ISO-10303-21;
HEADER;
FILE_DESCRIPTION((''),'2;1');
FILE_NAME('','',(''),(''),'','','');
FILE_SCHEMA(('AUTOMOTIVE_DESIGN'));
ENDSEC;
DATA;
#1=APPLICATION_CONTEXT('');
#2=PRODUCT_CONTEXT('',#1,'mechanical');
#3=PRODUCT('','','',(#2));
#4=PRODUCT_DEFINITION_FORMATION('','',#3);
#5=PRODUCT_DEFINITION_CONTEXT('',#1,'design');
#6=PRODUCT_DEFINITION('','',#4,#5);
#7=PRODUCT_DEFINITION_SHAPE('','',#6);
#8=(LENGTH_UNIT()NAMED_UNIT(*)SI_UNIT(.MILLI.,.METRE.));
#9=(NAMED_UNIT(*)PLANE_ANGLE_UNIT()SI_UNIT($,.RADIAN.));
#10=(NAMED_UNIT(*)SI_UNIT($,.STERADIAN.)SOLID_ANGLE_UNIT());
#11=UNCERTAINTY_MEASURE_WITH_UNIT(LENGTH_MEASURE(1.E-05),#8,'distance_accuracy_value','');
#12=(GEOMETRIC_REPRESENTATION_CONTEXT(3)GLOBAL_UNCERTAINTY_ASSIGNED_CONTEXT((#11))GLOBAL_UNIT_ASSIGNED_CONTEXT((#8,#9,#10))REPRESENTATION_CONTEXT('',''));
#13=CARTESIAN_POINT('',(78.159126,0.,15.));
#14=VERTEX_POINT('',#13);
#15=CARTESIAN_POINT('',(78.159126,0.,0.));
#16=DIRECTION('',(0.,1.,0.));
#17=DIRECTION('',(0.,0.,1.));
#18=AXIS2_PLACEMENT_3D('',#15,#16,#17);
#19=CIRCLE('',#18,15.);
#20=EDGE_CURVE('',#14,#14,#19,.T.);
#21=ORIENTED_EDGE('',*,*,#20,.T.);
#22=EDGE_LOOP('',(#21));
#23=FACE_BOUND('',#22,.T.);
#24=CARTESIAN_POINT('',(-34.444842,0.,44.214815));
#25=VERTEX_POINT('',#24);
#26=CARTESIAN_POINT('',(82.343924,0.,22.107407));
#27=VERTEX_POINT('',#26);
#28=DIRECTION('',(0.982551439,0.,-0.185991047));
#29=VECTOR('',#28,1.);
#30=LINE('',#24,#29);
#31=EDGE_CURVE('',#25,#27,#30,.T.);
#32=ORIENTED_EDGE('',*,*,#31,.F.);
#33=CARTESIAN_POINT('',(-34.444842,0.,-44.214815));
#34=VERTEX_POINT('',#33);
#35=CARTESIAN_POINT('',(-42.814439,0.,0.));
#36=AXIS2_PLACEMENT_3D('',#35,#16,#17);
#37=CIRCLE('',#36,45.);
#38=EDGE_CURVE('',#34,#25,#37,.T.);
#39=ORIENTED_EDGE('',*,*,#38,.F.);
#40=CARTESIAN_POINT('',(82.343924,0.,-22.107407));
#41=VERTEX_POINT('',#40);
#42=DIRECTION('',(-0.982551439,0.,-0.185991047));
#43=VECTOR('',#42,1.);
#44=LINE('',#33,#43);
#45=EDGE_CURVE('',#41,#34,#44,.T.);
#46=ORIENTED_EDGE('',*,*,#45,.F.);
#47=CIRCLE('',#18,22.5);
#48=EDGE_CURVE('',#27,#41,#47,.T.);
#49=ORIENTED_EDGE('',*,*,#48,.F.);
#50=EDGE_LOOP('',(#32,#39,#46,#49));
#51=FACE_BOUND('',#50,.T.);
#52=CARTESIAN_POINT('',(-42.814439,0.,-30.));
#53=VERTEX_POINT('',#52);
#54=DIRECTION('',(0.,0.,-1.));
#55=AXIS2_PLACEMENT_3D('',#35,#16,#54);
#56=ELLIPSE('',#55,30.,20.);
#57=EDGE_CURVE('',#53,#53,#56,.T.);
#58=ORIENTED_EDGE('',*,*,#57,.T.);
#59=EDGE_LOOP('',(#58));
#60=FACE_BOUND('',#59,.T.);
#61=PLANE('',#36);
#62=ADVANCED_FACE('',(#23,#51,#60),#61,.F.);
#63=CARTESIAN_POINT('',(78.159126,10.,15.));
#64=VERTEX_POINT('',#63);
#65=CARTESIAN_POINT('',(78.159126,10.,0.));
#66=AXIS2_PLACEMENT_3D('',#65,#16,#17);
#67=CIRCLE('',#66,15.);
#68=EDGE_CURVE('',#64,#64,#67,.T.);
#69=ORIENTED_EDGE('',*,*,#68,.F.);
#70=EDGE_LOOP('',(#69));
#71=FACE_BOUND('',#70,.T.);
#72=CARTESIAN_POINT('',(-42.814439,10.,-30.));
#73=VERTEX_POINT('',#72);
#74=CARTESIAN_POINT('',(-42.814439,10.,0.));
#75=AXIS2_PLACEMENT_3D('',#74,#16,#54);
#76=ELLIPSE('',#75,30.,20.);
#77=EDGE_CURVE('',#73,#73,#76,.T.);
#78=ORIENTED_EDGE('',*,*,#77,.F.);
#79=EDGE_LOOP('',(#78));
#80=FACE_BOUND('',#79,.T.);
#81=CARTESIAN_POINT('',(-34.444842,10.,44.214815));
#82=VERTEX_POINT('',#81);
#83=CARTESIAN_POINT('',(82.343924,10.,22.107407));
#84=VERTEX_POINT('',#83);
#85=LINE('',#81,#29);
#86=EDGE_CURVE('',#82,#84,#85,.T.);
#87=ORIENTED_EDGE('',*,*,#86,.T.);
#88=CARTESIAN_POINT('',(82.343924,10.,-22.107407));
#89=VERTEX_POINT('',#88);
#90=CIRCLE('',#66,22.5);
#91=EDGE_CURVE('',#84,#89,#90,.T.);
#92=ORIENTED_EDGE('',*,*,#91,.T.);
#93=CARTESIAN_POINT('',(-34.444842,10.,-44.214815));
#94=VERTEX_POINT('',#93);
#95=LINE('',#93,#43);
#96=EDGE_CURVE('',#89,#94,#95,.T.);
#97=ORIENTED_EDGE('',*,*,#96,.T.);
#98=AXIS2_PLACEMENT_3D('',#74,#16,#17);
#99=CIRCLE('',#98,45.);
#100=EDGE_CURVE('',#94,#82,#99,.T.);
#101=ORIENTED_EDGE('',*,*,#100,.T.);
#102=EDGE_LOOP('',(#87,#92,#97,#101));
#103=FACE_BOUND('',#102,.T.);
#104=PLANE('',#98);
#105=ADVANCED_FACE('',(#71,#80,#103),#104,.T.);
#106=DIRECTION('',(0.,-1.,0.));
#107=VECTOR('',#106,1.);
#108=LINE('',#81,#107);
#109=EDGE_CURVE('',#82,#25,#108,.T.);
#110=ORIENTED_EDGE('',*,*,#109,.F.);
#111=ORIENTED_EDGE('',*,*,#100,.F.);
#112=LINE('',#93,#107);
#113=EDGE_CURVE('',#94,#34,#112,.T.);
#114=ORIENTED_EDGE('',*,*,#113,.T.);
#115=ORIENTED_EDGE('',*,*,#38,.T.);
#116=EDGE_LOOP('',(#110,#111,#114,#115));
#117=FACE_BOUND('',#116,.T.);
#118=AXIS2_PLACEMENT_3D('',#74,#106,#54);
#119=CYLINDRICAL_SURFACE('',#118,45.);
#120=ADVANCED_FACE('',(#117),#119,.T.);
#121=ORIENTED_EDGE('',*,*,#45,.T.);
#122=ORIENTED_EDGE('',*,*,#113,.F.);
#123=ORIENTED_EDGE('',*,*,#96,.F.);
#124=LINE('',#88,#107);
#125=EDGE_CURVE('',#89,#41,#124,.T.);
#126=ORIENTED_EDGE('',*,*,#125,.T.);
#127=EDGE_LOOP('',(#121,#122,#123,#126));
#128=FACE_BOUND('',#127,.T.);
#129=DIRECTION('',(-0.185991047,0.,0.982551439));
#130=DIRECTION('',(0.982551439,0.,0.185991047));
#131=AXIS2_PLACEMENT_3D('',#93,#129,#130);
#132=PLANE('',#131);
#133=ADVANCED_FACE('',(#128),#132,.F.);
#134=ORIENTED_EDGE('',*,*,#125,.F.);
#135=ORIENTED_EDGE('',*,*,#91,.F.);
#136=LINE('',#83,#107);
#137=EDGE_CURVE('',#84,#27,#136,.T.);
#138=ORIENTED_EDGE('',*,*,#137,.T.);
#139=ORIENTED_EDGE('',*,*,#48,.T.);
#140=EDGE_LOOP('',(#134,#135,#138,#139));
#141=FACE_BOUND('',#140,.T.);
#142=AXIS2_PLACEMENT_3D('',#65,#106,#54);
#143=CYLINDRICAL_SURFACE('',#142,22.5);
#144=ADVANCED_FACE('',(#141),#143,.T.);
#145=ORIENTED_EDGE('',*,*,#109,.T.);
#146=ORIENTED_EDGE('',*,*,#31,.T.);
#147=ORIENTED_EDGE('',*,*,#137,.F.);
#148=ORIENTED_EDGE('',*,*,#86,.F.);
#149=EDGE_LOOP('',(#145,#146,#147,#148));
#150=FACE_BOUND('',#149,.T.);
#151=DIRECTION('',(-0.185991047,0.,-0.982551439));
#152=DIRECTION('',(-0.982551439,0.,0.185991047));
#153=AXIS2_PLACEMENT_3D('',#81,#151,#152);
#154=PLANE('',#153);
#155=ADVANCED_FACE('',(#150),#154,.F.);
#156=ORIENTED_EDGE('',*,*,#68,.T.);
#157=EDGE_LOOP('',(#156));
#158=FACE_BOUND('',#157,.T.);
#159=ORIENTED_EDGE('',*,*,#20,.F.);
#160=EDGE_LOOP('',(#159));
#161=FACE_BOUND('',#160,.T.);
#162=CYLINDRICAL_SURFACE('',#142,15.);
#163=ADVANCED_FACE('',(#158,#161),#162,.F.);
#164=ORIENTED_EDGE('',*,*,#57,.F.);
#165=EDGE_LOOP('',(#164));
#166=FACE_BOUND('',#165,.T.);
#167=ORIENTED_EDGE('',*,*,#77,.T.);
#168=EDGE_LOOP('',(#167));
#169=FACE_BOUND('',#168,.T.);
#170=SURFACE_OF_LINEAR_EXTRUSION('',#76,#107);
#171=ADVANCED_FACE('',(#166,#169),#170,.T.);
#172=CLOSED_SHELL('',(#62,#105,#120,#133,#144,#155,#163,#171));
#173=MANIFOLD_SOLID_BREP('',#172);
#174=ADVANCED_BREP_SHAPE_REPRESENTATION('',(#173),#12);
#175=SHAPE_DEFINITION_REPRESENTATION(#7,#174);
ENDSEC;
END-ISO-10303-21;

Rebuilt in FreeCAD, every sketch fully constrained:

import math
import FreeCAD as App
import Part
import Sketcher
from FreeCAD import Vector

doc = App.newDocument("Part")
body = doc.addObject("PartDesign::Body", "Body")

# Sketch on XZ plane
sketch1 = body.newObject("Sketcher::SketchObject", "Sketch")
sketch1.AttachmentSupport = (doc.getObject("XZ_Plane"), [""])
sketch1.MapMode = "FlatFace"
sketch1.addGeometry(Part.LineSegment(Vector(82.343924, -22.107407, 0), Vector(-34.444842, -44.214815, 0)), False)
sketch1.addGeometry(Part.ArcOfCircle(Part.Circle(Vector(-42.814439, 0, 0), Vector(0, 0, 1), 45), math.radians(79.281082), math.radians(280.718918)), False)
sketch1.addGeometry(Part.LineSegment(Vector(-34.444842, 44.214815, 0), Vector(82.343924, 22.107407, 0)), False)
sketch1.addGeometry(Part.ArcOfCircle(Part.Circle(Vector(78.159126, 0, 0), Vector(0, 0, 1), 22.5), math.radians(-79.281082), math.radians(79.281082)), False)
sketch1.addGeometry(Part.Circle(Vector(78.159126, 0, 0), Vector(0, 0, 1), 15), False)
sketch1.addGeometry(Part.Ellipse(Vector(-42.814439, -30, 0), Vector(-22.814439, 0, 0), Vector(-42.814439, 0, 0)), False)
sketch1.addConstraint(Sketcher.Constraint("Block", 5))
sketch1.addConstraint(Sketcher.Constraint("Tangent", 0, 2, 1, 2))
sketch1.addConstraint(Sketcher.Constraint("Tangent", 1, 1, 2, 1))
sketch1.addConstraint(Sketcher.Constraint("Tangent", 2, 2, 3, 2))
sketch1.addConstraint(Sketcher.Constraint("Tangent", 3, 1, 0, 1))
sketch1.addConstraint(Sketcher.Constraint("Coincident", 4, 3, 3, 3))
sketch1.addConstraint(Sketcher.Constraint("Symmetric", 0, 2, 1, 1, -1))
sketch1.addConstraint(Sketcher.Constraint("Diameter", 4, 30.0))
sketch1.addConstraint(Sketcher.Constraint("Radius", 1, 45.0))
sketch1.addConstraint(Sketcher.Constraint("Radius", 3, 22.5))
sketch1.addConstraint(Sketcher.Constraint("DistanceX", 3, 3, 2, 2, 4.184799))
sketch1.addConstraint(Sketcher.Constraint("DistanceX", 1, 3, -1, 1, 42.814439))
pad1 = body.newObject("PartDesign::Pad", "Pad")
pad1.Profile = sketch1
pad1.Length = 10
pad1.Reversed = True

doc.recompute()
